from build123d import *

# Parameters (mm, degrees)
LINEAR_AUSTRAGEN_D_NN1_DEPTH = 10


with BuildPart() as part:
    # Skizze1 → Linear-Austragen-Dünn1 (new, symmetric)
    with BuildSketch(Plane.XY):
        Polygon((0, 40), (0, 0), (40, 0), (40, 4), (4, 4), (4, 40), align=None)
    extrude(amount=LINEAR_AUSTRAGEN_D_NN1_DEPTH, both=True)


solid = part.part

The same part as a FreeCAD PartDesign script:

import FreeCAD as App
import Part
import Sketcher

V = App.Vector
Q = App.Units.Quantity


def add_polygon(sketch, points):
    """Adds a closed chain of lines whose ends are joined by coincident constraints."""
    first, n = sketch.GeometryCount, len(points)
    for a, b in zip(points, points[1:] + points[:1]):
        sketch.addGeometry(Part.LineSegment(App.Vector(*a, 0), App.Vector(*b, 0)), False)
    for i in range(n):
        sketch.addConstraint(Sketcher.Constraint("Coincident", first + i, 2, first + (i + 1) % n, 1))

doc = App.newDocument("Part")
body = doc.addObject("PartDesign::Body", "Body")

sketch1 = body.newObject("Sketcher::SketchObject", "Sketch")
sketch1.AttachmentSupport = (doc.getObject("XY_Plane"), [""])
sketch1.MapMode = "FlatFace"
add_polygon(sketch1, [(0, 40), (0, 0), (40, 0), (40, 4), (4, 4), (4, 40)])
sketch1.addConstraint([
    Sketcher.Constraint("Vertical", 0),
    Sketcher.Constraint("Horizontal", 1),
    Sketcher.Constraint("Vertical", 2),
    Sketcher.Constraint("Horizontal", 3),
    Sketcher.Constraint("Vertical", 4),
    Sketcher.Constraint("Horizontal", 5),
    Sketcher.Constraint("Coincident", 0, 2, -1, 1),
    Sketcher.Constraint("Equal", 1, 0),
    Sketcher.Constraint("Equal", 5, 2),
    Sketcher.Constraint("DistanceX", 1, 1, 1, 2, Q("40 mm")),
    Sketcher.Constraint("DistanceX", 3, 2, 3, 1, Q("36 mm")),
])
pad1 = body.newObject("PartDesign::Pad", "Pad")
pad1.Profile = sketch1
pad1.Length = 20
pad1.Midplane = True

doc.recompute()
